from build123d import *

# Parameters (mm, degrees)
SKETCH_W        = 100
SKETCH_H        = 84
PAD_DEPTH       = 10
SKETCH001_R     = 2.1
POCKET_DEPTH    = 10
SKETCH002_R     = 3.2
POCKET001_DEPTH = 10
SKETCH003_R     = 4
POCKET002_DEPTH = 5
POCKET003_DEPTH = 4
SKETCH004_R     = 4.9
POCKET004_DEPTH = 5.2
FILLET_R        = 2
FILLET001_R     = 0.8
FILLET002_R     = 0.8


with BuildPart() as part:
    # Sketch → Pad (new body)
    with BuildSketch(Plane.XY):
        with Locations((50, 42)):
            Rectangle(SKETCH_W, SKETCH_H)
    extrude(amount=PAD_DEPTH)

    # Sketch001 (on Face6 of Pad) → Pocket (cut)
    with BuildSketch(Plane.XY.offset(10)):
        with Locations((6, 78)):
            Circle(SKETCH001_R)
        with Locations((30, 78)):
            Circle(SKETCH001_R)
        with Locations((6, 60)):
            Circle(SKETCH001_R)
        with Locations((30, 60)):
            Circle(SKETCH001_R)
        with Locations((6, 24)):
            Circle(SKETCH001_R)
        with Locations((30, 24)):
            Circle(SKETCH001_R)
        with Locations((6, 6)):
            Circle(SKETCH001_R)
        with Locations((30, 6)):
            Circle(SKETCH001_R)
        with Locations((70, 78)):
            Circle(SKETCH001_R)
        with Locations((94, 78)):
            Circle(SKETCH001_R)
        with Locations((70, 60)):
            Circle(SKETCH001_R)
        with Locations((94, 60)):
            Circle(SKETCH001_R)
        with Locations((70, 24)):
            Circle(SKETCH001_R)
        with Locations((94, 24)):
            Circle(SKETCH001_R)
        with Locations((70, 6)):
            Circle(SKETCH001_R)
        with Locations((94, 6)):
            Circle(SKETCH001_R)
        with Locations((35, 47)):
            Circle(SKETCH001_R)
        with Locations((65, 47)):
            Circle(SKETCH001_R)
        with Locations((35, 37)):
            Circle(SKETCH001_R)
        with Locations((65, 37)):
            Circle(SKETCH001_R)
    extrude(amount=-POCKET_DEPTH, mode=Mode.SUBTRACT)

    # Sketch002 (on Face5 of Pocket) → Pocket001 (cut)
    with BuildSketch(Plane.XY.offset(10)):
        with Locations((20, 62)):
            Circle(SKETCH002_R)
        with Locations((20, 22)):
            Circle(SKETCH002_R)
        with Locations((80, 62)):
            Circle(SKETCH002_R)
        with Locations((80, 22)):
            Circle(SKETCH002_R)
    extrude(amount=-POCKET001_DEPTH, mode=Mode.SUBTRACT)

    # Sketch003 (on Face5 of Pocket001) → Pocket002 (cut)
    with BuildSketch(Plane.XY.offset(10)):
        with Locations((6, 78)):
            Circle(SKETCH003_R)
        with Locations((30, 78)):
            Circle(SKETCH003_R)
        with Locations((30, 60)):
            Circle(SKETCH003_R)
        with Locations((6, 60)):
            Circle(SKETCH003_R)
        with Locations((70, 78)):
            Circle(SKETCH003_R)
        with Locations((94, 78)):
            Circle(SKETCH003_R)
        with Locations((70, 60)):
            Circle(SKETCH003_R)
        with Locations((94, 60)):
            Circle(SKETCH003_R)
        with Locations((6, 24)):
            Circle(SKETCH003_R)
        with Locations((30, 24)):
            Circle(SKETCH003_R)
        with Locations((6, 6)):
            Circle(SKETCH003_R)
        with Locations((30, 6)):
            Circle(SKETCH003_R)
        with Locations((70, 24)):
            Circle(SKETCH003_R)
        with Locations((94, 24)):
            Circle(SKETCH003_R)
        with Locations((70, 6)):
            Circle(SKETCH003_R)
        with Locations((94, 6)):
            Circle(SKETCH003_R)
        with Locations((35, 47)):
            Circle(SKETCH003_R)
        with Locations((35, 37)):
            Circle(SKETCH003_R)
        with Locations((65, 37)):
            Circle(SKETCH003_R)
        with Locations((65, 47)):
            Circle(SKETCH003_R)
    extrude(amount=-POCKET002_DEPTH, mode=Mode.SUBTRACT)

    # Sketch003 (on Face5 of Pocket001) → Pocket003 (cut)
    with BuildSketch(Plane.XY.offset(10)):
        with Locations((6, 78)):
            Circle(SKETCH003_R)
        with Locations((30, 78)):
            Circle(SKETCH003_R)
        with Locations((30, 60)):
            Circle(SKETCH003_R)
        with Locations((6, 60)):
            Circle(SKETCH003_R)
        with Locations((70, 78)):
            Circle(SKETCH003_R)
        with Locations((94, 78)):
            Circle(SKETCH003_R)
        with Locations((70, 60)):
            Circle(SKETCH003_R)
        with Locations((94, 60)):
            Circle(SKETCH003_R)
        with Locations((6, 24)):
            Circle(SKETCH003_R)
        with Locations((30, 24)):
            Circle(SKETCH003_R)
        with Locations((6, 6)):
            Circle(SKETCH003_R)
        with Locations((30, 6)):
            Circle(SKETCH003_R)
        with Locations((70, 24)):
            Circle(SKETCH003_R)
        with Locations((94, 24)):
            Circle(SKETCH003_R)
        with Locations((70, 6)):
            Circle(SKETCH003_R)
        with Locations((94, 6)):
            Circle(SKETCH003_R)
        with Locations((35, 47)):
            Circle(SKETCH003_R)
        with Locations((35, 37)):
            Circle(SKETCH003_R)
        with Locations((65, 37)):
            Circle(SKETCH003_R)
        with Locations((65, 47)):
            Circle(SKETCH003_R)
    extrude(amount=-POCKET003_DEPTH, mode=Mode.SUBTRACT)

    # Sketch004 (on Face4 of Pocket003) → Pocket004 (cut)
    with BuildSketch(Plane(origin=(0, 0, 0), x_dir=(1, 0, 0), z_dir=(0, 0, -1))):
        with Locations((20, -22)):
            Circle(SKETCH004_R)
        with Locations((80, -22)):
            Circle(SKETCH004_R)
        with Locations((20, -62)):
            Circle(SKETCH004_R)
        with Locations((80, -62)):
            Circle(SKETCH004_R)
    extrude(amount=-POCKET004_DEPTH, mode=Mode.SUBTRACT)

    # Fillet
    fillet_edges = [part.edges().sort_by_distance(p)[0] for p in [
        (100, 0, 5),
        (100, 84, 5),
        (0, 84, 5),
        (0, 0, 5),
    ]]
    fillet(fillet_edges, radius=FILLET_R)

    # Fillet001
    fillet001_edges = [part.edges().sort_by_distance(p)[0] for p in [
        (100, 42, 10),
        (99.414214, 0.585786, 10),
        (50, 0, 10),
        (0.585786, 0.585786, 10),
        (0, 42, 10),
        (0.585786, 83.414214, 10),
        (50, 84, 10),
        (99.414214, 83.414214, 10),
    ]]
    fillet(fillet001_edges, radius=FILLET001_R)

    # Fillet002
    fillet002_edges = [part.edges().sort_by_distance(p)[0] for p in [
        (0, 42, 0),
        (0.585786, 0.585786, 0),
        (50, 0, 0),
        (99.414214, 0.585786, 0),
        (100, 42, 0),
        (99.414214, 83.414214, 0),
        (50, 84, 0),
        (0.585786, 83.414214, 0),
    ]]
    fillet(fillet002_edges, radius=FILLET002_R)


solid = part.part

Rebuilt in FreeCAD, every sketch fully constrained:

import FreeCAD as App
import Part
import Sketcher
from FreeCAD import Vector


def edges_at(feature, points):
    """Names of the edges that pass closest to the given points."""
    edges = feature.Shape.Edges
    near = lambda p: min(range(len(edges)), key=lambda i: edges[i].distToShape(Part.Vertex(*p))[0])
    return sorted({f"Edge{near(p) + 1}" for p in points})

doc = App.newDocument("Part")
params = doc.addObject("Spreadsheet::Sheet", "Params")
for row, (alias, value) in enumerate([
    ("sketch1_width", "100 mm"),
    ("sketch1_height", "84 mm"),
    ("pad1_length", "10 mm"),
    ("sketch2_diameter", "4.2 mm"),
    ("pocket1_length", "10 mm"),
    ("sketch3_diameter", "6.4 mm"),
    ("pocket2_length", "10 mm"),
    ("sketch4_diameter", "8 mm"),
    ("pocket3_length", "5 mm"),
    ("sketch5_diameter", "8 mm"),
    ("pocket4_length", "4 mm"),
    ("sketch6_diameter", "9.8 mm"),
    ("pocket5_length", "5.2 mm"),
    ("fillet_radius", "2 mm"),
    ("fillet2_radius", "0.8 mm"),
    ("fillet3_radius", "0.8 mm"),
], start=1):
    params.set(f"A{row}", alias)
    params.set(f"B{row}", "=" + value)
    params.setAlias(f"B{row}", alias)

body = doc.addObject("PartDesign::Body", "Body")

sketch1 = body.newObject("Sketcher::SketchObject", "Sketch")
sketch1.AttachmentSupport = (doc.getObject("XY_Plane"), [""])
sketch1.MapMode = "FlatFace"
sketch1.addGeometry([
    Part.LineSegment(Vector(0, 84, 0), Vector(0, 0, 0)),
    Part.LineSegment(Vector(0, 0, 0), Vector(100, 0, 0)),
    Part.LineSegment(Vector(100, 0, 0), Vector(100, 84, 0)),
    Part.LineSegment(Vector(100, 84, 0), Vector(0, 84, 0)),
], False)
sketch1.addConstraint([
    Sketcher.Constraint("Coincident", 0, 2, 1, 1),
    Sketcher.Constraint("Coincident", 1, 2, 2, 1),
    Sketcher.Constraint("Coincident", 2, 2, 3, 1),
    Sketcher.Constraint("Coincident", 3, 2, 0, 1),
    Sketcher.Constraint("Vertical", 0),
    Sketcher.Constraint("Horizontal", 1),
    Sketcher.Constraint("Vertical", 2),
    Sketcher.Constraint("Horizontal", 3),
    Sketcher.Constraint("Coincident", 0, 2, -1, 1),
    Sketcher.Constraint("DistanceX", 1, 1, 1, 2, 100.0),
    Sketcher.Constraint("DistanceY", 0, 2, 0, 1, 84.0),
])
sketch1.setExpression("Constraints[9]", "Params.sketch1_width")
sketch1.setExpression("Constraints[10]", "Params.sketch1_height")
pad1 = body.newObject("PartDesign::Pad", "Pad")
pad1.Profile = sketch1
pad1.setExpression("Length", "Params.pad1_length")

sketch2 = body.newObject("Sketcher::SketchObject", "Sketch001")
sketch2.AttachmentSupport = (doc.getObject("XY_Plane"), [""])
sketch2.MapMode = "FlatFace"
sketch2.AttachmentOffset = App.Placement(Vector(0, 0, 10), App.Rotation())
sketch2.addGeometry([
    Part.Circle(Vector(6, 78, 0), Vector(0, 0, 1), 2.1),
    Part.Circle(Vector(30, 78, 0), Vector(0, 0, 1), 2.1),
    Part.Circle(Vector(6, 60, 0), Vector(0, 0, 1), 2.1),
    Part.Circle(Vector(30, 60, 0), Vector(0, 0, 1), 2.1),
    Part.Circle(Vector(6, 24, 0), Vector(0, 0, 1), 2.1),
    Part.Circle(Vector(30, 24, 0), Vector(0, 0, 1), 2.1),
    Part.Circle(Vector(6, 6, 0), Vector(0, 0, 1), 2.1),
    Part.Circle(Vector(30, 6, 0), Vector(0, 0, 1), 2.1),
    Part.Circle(Vector(70, 78, 0), Vector(0, 0, 1), 2.1),
    Part.Circle(Vector(94, 78, 0), Vector(0, 0, 1), 2.1),
    Part.Circle(Vector(70, 60, 0), Vector(0, 0, 1), 2.1),
    Part.Circle(Vector(94, 60, 0), Vector(0, 0, 1), 2.1),
    Part.Circle(Vector(70, 24, 0), Vector(0, 0, 1), 2.1),
    Part.Circle(Vector(94, 24, 0), Vector(0, 0, 1), 2.1),
    Part.Circle(Vector(70, 6, 0), Vector(0, 0, 1), 2.1),
    Part.Circle(Vector(94, 6, 0), Vector(0, 0, 1), 2.1),
    Part.Circle(Vector(35, 47, 0), Vector(0, 0, 1), 2.1),
    Part.Circle(Vector(65, 47, 0), Vector(0, 0, 1), 2.1),
    Part.Circle(Vector(35, 37, 0), Vector(0, 0, 1), 2.1),
    Part.Circle(Vector(65, 37, 0), Vector(0, 0, 1), 2.1),
], False)
sketch2.addConstraint([
    Sketcher.Constraint("Equal", 0, 1),
    Sketcher.Constraint("Equal", 1, 2),
    Sketcher.Constraint("Equal", 2, 3),
    Sketcher.Constraint("Equal", 3, 4),
    Sketcher.Constraint("Equal", 4, 5),
    Sketcher.Constraint("Equal", 5, 6),
    Sketcher.Constraint("Equal", 6, 7),
    Sketcher.Constraint("Equal", 7, 8),
    Sketcher.Constraint("Equal", 8, 9),
    Sketcher.Constraint("Equal", 9, 10),
    Sketcher.Constraint("Equal", 10, 11),
    Sketcher.Constraint("Equal", 11, 12),
    Sketcher.Constraint("Equal", 12, 13),
    Sketcher.Constraint("Equal", 13, 14),
    Sketcher.Constraint("Equal", 14, 15),
    Sketcher.Constraint("Equal", 15, 16),
    Sketcher.Constraint("Equal", 16, 17),
    Sketcher.Constraint("Equal", 17, 18),
    Sketcher.Constraint("Equal", 18, 19),
    Sketcher.Constraint("Horizontal", 0, 3, 1, 3),
    Sketcher.Constraint("Horizontal", 2, 3, 3, 3),
    Sketcher.Constraint("Horizontal", 4, 3, 5, 3),
    Sketcher.Constraint("Horizontal", 6, 3, 7, 3),
    Sketcher.Constraint("Horizontal", 1, 3, 8, 3),
    Sketcher.Constraint("Horizontal", 8, 3, 9, 3),
    Sketcher.Constraint("Horizontal", 3, 3, 10, 3),
    Sketcher.Constraint("Horizontal", 10, 3, 11, 3),
    Sketcher.Constraint("Horizontal", 5, 3, 12, 3),
    Sketcher.Constraint("Horizontal", 12, 3, 13, 3),
    Sketcher.Constraint("Horizontal", 7, 3, 14, 3),
    Sketcher.Constraint("Horizontal", 14, 3, 15, 3),
    Sketcher.Constraint("Horizontal", 16, 3, 17, 3),
    Sketcher.Constraint("Horizontal", 18, 3, 19, 3),
    Sketcher.Constraint("Vertical", 0, 3, 2, 3),
    Sketcher.Constraint("Vertical", 1, 3, 3, 3),
    Sketcher.Constraint("Vertical", 2, 3, 4, 3),
    Sketcher.Constraint("Vertical", 3, 3, 5, 3),
    Sketcher.Constraint("Vertical", 4, 3, 6, 3),
    Sketcher.Constraint("Vertical", 5, 3, 7, 3),
    Sketcher.Constraint("Vertical", 8, 3, 10, 3),
    Sketcher.Constraint("Vertical", 9, 3, 11, 3),
    Sketcher.Constraint("Vertical", 10, 3, 12, 3),
    Sketcher.Constraint("Vertical", 11, 3, 13, 3),
    Sketcher.Constraint("Vertical", 12, 3, 14, 3),
    Sketcher.Constraint("Vertical", 13, 3, 15, 3),
    Sketcher.Constraint("Vertical", 16, 3, 18, 3),
    Sketcher.Constraint("Vertical", 17, 3, 19, 3),
    Sketcher.Constraint("Diameter", 0, 4.2),
    Sketcher.Constraint("DistanceX", -1, 1, 0, 3, 6.0),
    Sketcher.Constraint("DistanceY", -1, 1, 0, 3, 78.0),
    Sketcher.Constraint("DistanceX", -1, 1, 1, 3, 30.0),
    Sketcher.Constraint("DistanceY", -1, 1, 2, 3, 60.0),
    Sketcher.Constraint("DistanceY", -1, 1, 4, 3, 24.0),
    Sketcher.Constraint("DistanceY", -1, 1, 6, 3, 6.0),
    Sketcher.Constraint("DistanceX", -1, 1, 8, 3, 70.0),
    Sketcher.Constraint("DistanceX", -1, 1, 9, 3, 94.0),
    Sketcher.Constraint("DistanceX", -1, 1, 16, 3, 35.0),
    Sketcher.Constraint("DistanceY", -1, 1, 16, 3, 47.0),
    Sketcher.Constraint("DistanceX", -1, 1, 17, 3, 65.0),
    Sketcher.Constraint("DistanceY", -1, 1, 18, 3, 37.0),
])
sketch2.setExpression("Constraints[47]", "Params.sketch2_diameter")
pocket1 = body.newObject("PartDesign::Pocket", "Pocket")
pocket1.Profile = sketch2
pocket1.setExpression("Length", "Params.pocket1_length")

sketch3 = body.newObject("Sketcher::SketchObject", "Sketch002")
sketch3.AttachmentSupport = (doc.getObject("XY_Plane"), [""])
sketch3.MapMode = "FlatFace"
sketch3.AttachmentOffset = App.Placement(Vector(0, 0, 10), App.Rotation())
sketch3.addGeometry([
    Part.Circle(Vector(20, 62, 0), Vector(0, 0, 1), 3.2),
    Part.Circle(Vector(20, 22, 0), Vector(0, 0, 1), 3.2),
    Part.Circle(Vector(80, 62, 0), Vector(0, 0, 1), 3.2),
    Part.Circle(Vector(80, 22, 0), Vector(0, 0, 1), 3.2),
], False)
sketch3.addConstraint([
    Sketcher.Constraint("Equal", 0, 1),
    Sketcher.Constraint("Equal", 1, 2),
    Sketcher.Constraint("Equal", 2, 3),
    Sketcher.Constraint("Horizontal", 0, 3, 2, 3),
    Sketcher.Constraint("Horizontal", 1, 3, 3, 3),
    Sketcher.Constraint("Vertical", 0, 3, 1, 3),
    Sketcher.Constraint("Vertical", 2, 3, 3, 3),
    Sketcher.Constraint("Diameter", 0, 6.4),
    Sketcher.Constraint("DistanceX", -1, 1, 0, 3, 20.0),
    Sketcher.Constraint("DistanceY", -1, 1, 0, 3, 62.0),
    Sketcher.Constraint("DistanceY", -1, 1, 1, 3, 22.0),
    Sketcher.Constraint("DistanceX", -1, 1, 2, 3, 80.0),
])
sketch3.setExpression("Constraints[7]", "Params.sketch3_diameter")
pocket2 = body.newObject("PartDesign::Pocket", "Pocket001")
pocket2.Profile = sketch3
pocket2.setExpression("Length", "Params.pocket2_length")

sketch4 = body.newObject("Sketcher::SketchObject", "Sketch003")
sketch4.AttachmentSupport = (doc.getObject("XY_Plane"), [""])
sketch4.MapMode = "FlatFace"
sketch4.AttachmentOffset = App.Placement(Vector(0, 0, 10), App.Rotation())
sketch4.addGeometry([
    Part.Circle(Vector(6, 78, 0), Vector(0, 0, 1), 4),
    Part.Circle(Vector(30, 78, 0), Vector(0, 0, 1), 4),
    Part.Circle(Vector(30, 60, 0), Vector(0, 0, 1), 4),
    Part.Circle(Vector(6, 60, 0), Vector(0, 0, 1), 4),
    Part.Circle(Vector(70, 78, 0), Vector(0, 0, 1), 4),
    Part.Circle(Vector(94, 78, 0), Vector(0, 0, 1), 4),
    Part.Circle(Vector(70, 60, 0), Vector(0, 0, 1), 4),
    Part.Circle(Vector(94, 60, 0), Vector(0, 0, 1), 4),
    Part.Circle(Vector(6, 24, 0), Vector(0, 0, 1), 4),
    Part.Circle(Vector(30, 24, 0), Vector(0, 0, 1), 4),
    Part.Circle(Vector(6, 6, 0), Vector(0, 0, 1), 4),
    Part.Circle(Vector(30, 6, 0), Vector(0, 0, 1), 4),
    Part.Circle(Vector(70, 24, 0), Vector(0, 0, 1), 4),
    Part.Circle(Vector(94, 24, 0), Vector(0, 0, 1), 4),
    Part.Circle(Vector(70, 6, 0), Vector(0, 0, 1), 4),
    Part.Circle(Vector(94, 6, 0), Vector(0, 0, 1), 4),
    Part.Circle(Vector(35, 47, 0), Vector(0, 0, 1), 4),
    Part.Circle(Vector(35, 37, 0), Vector(0, 0, 1), 4),
    Part.Circle(Vector(65, 37, 0), Vector(0, 0, 1), 4),
    Part.Circle(Vector(65, 47, 0), Vector(0, 0, 1), 4),
], False)
sketch4.addConstraint([
    Sketcher.Constraint("Equal", 0, 1),
    Sketcher.Constraint("Equal", 1, 2),
    Sketcher.Constraint("Equal", 2, 3),
    Sketcher.Constraint("Equal", 3, 4),
    Sketcher.Constraint("Equal", 4, 5),
    Sketcher.Constraint("Equal", 5, 6),
    Sketcher.Constraint("Equal", 6, 7),
    Sketcher.Constraint("Equal", 7, 8),
    Sketcher.Constraint("Equal", 8, 9),
    Sketcher.Constraint("Equal", 9, 10),
    Sketcher.Constraint("Equal", 10, 11),
    Sketcher.Constraint("Equal", 11, 12),
    Sketcher.Constraint("Equal", 12, 13),
    Sketcher.Constraint("Equal", 13, 14),
    Sketcher.Constraint("Equal", 14, 15),
    Sketcher.Constraint("Equal", 15, 16),
    Sketcher.Constraint("Equal", 16, 17),
    Sketcher.Constraint("Equal", 17, 18),
    Sketcher.Constraint("Equal", 18, 19),
    Sketcher.Constraint("Horizontal", 0, 3, 1, 3),
    Sketcher.Constraint("Horizontal", 2, 3, 3, 3),
    Sketcher.Constraint("Horizontal", 1, 3, 4, 3),
    Sketcher.Constraint("Horizontal", 4, 3, 5, 3),
    Sketcher.Constraint("Horizontal", 3, 3, 6, 3),
    Sketcher.Constraint("Horizontal", 6, 3, 7, 3),
    Sketcher.Constraint("Horizontal", 8, 3, 9, 3),
    Sketcher.Constraint("Horizontal", 10, 3, 11, 3),
    Sketcher.Constraint("Horizontal", 9, 3, 12, 3),
    Sketcher.Constraint("Horizontal", 12, 3, 13, 3),
    Sketcher.Constraint("Horizontal", 11, 3, 14, 3),
    Sketcher.Constraint("Horizontal", 14, 3, 15, 3),
    Sketcher.Constraint("Horizontal", 17, 3, 18, 3),
    Sketcher.Constraint("Horizontal", 16, 3, 19, 3),
    Sketcher.Constraint("Vertical", 1, 3, 2, 3),
    Sketcher.Constraint("Vertical", 0, 3, 3, 3),
    Sketcher.Constraint("Vertical", 4, 3, 6, 3),
    Sketcher.Constraint("Vertical", 5, 3, 7, 3),
    Sketcher.Constraint("Vertical", 3, 3, 8, 3),
    Sketcher.Constraint("Vertical", 2, 3, 9, 3),
    Sketcher.Constraint("Vertical", 8, 3, 10, 3),
    Sketcher.Constraint("Vertical", 9, 3, 11, 3),
    Sketcher.Constraint("Vertical", 6, 3, 12, 3),
    Sketcher.Constraint("Vertical", 7, 3, 13, 3),
    Sketcher.Constraint("Vertical", 12, 3, 14, 3),
    Sketcher.Constraint("Vertical", 13, 3, 15, 3),
    Sketcher.Constraint("Vertical", 16, 3, 17, 3),
    Sketcher.Constraint("Vertical", 18, 3, 19, 3),
    Sketcher.Constraint("Diameter", 0, 8.0),
    Sketcher.Constraint("DistanceX", -1, 1, 0, 3, 6.0),
    Sketcher.Constraint("DistanceY", -1, 1, 0, 3, 78.0),
    Sketcher.Constraint("DistanceX", -1, 1, 1, 3, 30.0),
    Sketcher.Constraint("DistanceY", -1, 1, 2, 3, 60.0),
    Sketcher.Constraint("DistanceX", -1, 1, 4, 3, 70.0),
    Sketcher.Constraint("DistanceX", -1, 1, 5, 3, 94.0),
    Sketcher.Constraint("DistanceY", -1, 1, 8, 3, 24.0),
    Sketcher.Constraint("DistanceY", -1, 1, 10, 3, 6.0),
    Sketcher.Constraint("DistanceX", -1, 1, 16, 3, 35.0),
    Sketcher.Constraint("DistanceY", -1, 1, 16, 3, 47.0),
    Sketcher.Constraint("DistanceY", -1, 1, 17, 3, 37.0),
    Sketcher.Constraint("DistanceX", -1, 1, 18, 3, 65.0),
])
sketch4.setExpression("Constraints[47]", "Params.sketch4_diameter")
pocket3 = body.newObject("PartDesign::Pocket", "Pocket002")
pocket3.Profile = sketch4
pocket3.setExpression("Length", "Params.pocket3_length")

sketch5 = body.newObject("Sketcher::SketchObject", "Sketch004")
sketch5.AttachmentSupport = (doc.getObject("XY_Plane"), [""])
sketch5.MapMode = "FlatFace"
sketch5.AttachmentOffset = App.Placement(Vector(0, 0, 10), App.Rotation())
sketch5.addGeometry([
    Part.Circle(Vector(6, 78, 0), Vector(0, 0, 1), 4),
    Part.Circle(Vector(30, 78, 0), Vector(0, 0, 1), 4),
    Part.Circle(Vector(30, 60, 0), Vector(0, 0, 1), 4),
    Part.Circle(Vector(6, 60, 0), Vector(0, 0, 1), 4),
    Part.Circle(Vector(70, 78, 0), Vector(0, 0, 1), 4),
    Part.Circle(Vector(94, 78, 0), Vector(0, 0, 1), 4),
    Part.Circle(Vector(70, 60, 0), Vector(0, 0, 1), 4),
    Part.Circle(Vector(94, 60, 0), Vector(0, 0, 1), 4),
    Part.Circle(Vector(6, 24, 0), Vector(0, 0, 1), 4),
    Part.Circle(Vector(30, 24, 0), Vector(0, 0, 1), 4),
    Part.Circle(Vector(6, 6, 0), Vector(0, 0, 1), 4),
    Part.Circle(Vector(30, 6, 0), Vector(0, 0, 1), 4),
    Part.Circle(Vector(70, 24, 0), Vector(0, 0, 1), 4),
    Part.Circle(Vector(94, 24, 0), Vector(0, 0, 1), 4),
    Part.Circle(Vector(70, 6, 0), Vector(0, 0, 1), 4),
    Part.Circle(Vector(94, 6, 0), Vector(0, 0, 1), 4),
    Part.Circle(Vector(35, 47, 0), Vector(0, 0, 1), 4),
    Part.Circle(Vector(35, 37, 0), Vector(0, 0, 1), 4),
    Part.Circle(Vector(65, 37, 0), Vector(0, 0, 1), 4),
    Part.Circle(Vector(65, 47, 0), Vector(0, 0, 1), 4),
], False)
sketch5.addConstraint([
    Sketcher.Constraint("Equal", 0, 1),
    Sketcher.Constraint("Equal", 1, 2),
    Sketcher.Constraint("Equal", 2, 3),
    Sketcher.Constraint("Equal", 3, 4),
    Sketcher.Constraint("Equal", 4, 5),
    Sketcher.Constraint("Equal", 5, 6),
    Sketcher.Constraint("Equal", 6, 7),
    Sketcher.Constraint("Equal", 7, 8),
    Sketcher.Constraint("Equal", 8, 9),
    Sketcher.Constraint("Equal", 9, 10),
    Sketcher.Constraint("Equal", 10, 11),
    Sketcher.Constraint("Equal", 11, 12),
    Sketcher.Constraint("Equal", 12, 13),
    Sketcher.Constraint("Equal", 13, 14),
    Sketcher.Constraint("Equal", 14, 15),
    Sketcher.Constraint("Equal", 15, 16),
    Sketcher.Constraint("Equal", 16, 17),
    Sketcher.Constraint("Equal", 17, 18),
    Sketcher.Constraint("Equal", 18, 19),
    Sketcher.Constraint("Horizontal", 0, 3, 1, 3),
    Sketcher.Constraint("Horizontal", 2, 3, 3, 3),
    Sketcher.Constraint("Horizontal", 1, 3, 4, 3),
    Sketcher.Constraint("Horizontal", 4, 3, 5, 3),
    Sketcher.Constraint("Horizontal", 3, 3, 6, 3),
    Sketcher.Constraint("Horizontal", 6, 3, 7, 3),
    Sketcher.Constraint("Horizontal", 8, 3, 9, 3),
    Sketcher.Constraint("Horizontal", 10, 3, 11, 3),
    Sketcher.Constraint("Horizontal", 9, 3, 12, 3),
    Sketcher.Constraint("Horizontal", 12, 3, 13, 3),
    Sketcher.Constraint("Horizontal", 11, 3, 14, 3),
    Sketcher.Constraint("Horizontal", 14, 3, 15, 3),
    Sketcher.Constraint("Horizontal", 17, 3, 18, 3),
    Sketcher.Constraint("Horizontal", 16, 3, 19, 3),
    Sketcher.Constraint("Vertical", 1, 3, 2, 3),
    Sketcher.Constraint("Vertical", 0, 3, 3, 3),
    Sketcher.Constraint("Vertical", 4, 3, 6, 3),
    Sketcher.Constraint("Vertical", 5, 3, 7, 3),
    Sketcher.Constraint("Vertical", 3, 3, 8, 3),
    Sketcher.Constraint("Vertical", 2, 3, 9, 3),
    Sketcher.Constraint("Vertical", 8, 3, 10, 3),
    Sketcher.Constraint("Vertical", 9, 3, 11, 3),
    Sketcher.Constraint("Vertical", 6, 3, 12, 3),
    Sketcher.Constraint("Vertical", 7, 3, 13, 3),
    Sketcher.Constraint("Vertical", 12, 3, 14, 3),
    Sketcher.Constraint("Vertical", 13, 3, 15, 3),
    Sketcher.Constraint("Vertical", 16, 3, 17, 3),
    Sketcher.Constraint("Vertical", 18, 3, 19, 3),
    Sketcher.Constraint("Diameter", 0, 8.0),
    Sketcher.Constraint("DistanceX", -1, 1, 0, 3, 6.0),
    Sketcher.Constraint("DistanceY", -1, 1, 0, 3, 78.0),
    Sketcher.Constraint("DistanceX", -1, 1, 1, 3, 30.0),
    Sketcher.Constraint("DistanceY", -1, 1, 2, 3, 60.0),
    Sketcher.Constraint("DistanceX", -1, 1, 4, 3, 70.0),
    Sketcher.Constraint("DistanceX", -1, 1, 5, 3, 94.0),
    Sketcher.Constraint("DistanceY", -1, 1, 8, 3, 24.0),
    Sketcher.Constraint("DistanceY", -1, 1, 10, 3, 6.0),
    Sketcher.Constraint("DistanceX", -1, 1, 16, 3, 35.0),
    Sketcher.Constraint("DistanceY", -1, 1, 16, 3, 47.0),
    Sketcher.Constraint("DistanceY", -1, 1, 17, 3, 37.0),
    Sketcher.Constraint("DistanceX", -1, 1, 18, 3, 65.0),
])
sketch5.setExpression("Constraints[47]", "Params.sketch5_diameter")
pocket4 = body.newObject("PartDesign::Pocket", "Pocket003")
pocket4.Profile = sketch5
pocket4.setExpression("Length", "Params.pocket4_length")

sketch6 = body.newObject("Sketcher::SketchObject", "Sketch005")
sketch6.AttachmentSupport = (doc.getObject("XY_Plane"), [""])
sketch6.MapMode = "FlatFace"
sketch6.addGeometry([
    Part.Circle(Vector(20, 22, 0), Vector(0, 0, 1), 4.9),
    Part.Circle(Vector(80, 22, 0), Vector(0, 0, 1), 4.9),
    Part.Circle(Vector(20, 62, 0), Vector(0, 0, 1), 4.9),
    Part.Circle(Vector(80, 62, 0), Vector(0, 0, 1), 4.9),
], False)
sketch6.addConstraint([
    Sketcher.Constraint("Equal", 0, 1),
    Sketcher.Constraint("Equal", 1, 2),
    Sketcher.Constraint("Equal", 2, 3),
    Sketcher.Constraint("Horizontal", 0, 3, 1, 3),
    Sketcher.Constraint("Horizontal", 2, 3, 3, 3),
    Sketcher.Constraint("Vertical", 0, 3, 2, 3),
    Sketcher.Constraint("Vertical", 1, 3, 3, 3),
    Sketcher.Constraint("Diameter", 0, 9.8),
    Sketcher.Constraint("DistanceX", -1, 1, 0, 3, 20.0),
    Sketcher.Constraint("DistanceY", -1, 1, 0, 3, 22.0),
    Sketcher.Constraint("DistanceX", -1, 1, 1, 3, 80.0),
    Sketcher.Constraint("DistanceY", -1, 1, 2, 3, 62.0),
])
sketch6.setExpression("Constraints[7]", "Params.sketch6_diameter")
pocket5 = body.newObject("PartDesign::Pocket", "Pocket004")
pocket5.Profile = sketch6
pocket5.setExpression("Length", "Params.pocket5_length")
pocket5.Reversed = True
doc.recompute()

fillet = body.newObject("PartDesign::Fillet", "Fillet")
fillet.Base = (pocket5, edges_at(pocket5, [
    (100, 0, 5),
    (100, 84, 5),
    (0, 84, 5),
    (0, 0, 5),
]))
fillet.setExpression("Radius", "Params.fillet_radius")
doc.recompute()

fillet2 = body.newObject("PartDesign::Fillet", "Fillet001")
fillet2.Base = (fillet, edges_at(fillet, [
    (100, 42, 10),
    (99.414, 0.586, 10),
    (50, 0, 10),
    (0.586, 0.586, 10),
    (0, 42, 10),
    (0.586, 83.414, 10),
    (50, 84, 10),
    (99.414, 83.414, 10),
]))
fillet2.setExpression("Radius", "Params.fillet2_radius")
doc.recompute()

fillet3 = body.newObject("PartDesign::Fillet", "Fillet002")
fillet3.Base = (fillet2, edges_at(fillet2, [
    (0, 42, 0),
    (0.586, 0.586, 0),
    (50, 0, 0),
    (99.414, 0.586, 0),
    (100, 42, 0),
    (99.414, 83.414, 0),
    (50, 84, 0),
    (0.586, 83.414, 0),
]))
fillet3.setExpression("Radius", "Params.fillet3_radius")

doc.recompute()
